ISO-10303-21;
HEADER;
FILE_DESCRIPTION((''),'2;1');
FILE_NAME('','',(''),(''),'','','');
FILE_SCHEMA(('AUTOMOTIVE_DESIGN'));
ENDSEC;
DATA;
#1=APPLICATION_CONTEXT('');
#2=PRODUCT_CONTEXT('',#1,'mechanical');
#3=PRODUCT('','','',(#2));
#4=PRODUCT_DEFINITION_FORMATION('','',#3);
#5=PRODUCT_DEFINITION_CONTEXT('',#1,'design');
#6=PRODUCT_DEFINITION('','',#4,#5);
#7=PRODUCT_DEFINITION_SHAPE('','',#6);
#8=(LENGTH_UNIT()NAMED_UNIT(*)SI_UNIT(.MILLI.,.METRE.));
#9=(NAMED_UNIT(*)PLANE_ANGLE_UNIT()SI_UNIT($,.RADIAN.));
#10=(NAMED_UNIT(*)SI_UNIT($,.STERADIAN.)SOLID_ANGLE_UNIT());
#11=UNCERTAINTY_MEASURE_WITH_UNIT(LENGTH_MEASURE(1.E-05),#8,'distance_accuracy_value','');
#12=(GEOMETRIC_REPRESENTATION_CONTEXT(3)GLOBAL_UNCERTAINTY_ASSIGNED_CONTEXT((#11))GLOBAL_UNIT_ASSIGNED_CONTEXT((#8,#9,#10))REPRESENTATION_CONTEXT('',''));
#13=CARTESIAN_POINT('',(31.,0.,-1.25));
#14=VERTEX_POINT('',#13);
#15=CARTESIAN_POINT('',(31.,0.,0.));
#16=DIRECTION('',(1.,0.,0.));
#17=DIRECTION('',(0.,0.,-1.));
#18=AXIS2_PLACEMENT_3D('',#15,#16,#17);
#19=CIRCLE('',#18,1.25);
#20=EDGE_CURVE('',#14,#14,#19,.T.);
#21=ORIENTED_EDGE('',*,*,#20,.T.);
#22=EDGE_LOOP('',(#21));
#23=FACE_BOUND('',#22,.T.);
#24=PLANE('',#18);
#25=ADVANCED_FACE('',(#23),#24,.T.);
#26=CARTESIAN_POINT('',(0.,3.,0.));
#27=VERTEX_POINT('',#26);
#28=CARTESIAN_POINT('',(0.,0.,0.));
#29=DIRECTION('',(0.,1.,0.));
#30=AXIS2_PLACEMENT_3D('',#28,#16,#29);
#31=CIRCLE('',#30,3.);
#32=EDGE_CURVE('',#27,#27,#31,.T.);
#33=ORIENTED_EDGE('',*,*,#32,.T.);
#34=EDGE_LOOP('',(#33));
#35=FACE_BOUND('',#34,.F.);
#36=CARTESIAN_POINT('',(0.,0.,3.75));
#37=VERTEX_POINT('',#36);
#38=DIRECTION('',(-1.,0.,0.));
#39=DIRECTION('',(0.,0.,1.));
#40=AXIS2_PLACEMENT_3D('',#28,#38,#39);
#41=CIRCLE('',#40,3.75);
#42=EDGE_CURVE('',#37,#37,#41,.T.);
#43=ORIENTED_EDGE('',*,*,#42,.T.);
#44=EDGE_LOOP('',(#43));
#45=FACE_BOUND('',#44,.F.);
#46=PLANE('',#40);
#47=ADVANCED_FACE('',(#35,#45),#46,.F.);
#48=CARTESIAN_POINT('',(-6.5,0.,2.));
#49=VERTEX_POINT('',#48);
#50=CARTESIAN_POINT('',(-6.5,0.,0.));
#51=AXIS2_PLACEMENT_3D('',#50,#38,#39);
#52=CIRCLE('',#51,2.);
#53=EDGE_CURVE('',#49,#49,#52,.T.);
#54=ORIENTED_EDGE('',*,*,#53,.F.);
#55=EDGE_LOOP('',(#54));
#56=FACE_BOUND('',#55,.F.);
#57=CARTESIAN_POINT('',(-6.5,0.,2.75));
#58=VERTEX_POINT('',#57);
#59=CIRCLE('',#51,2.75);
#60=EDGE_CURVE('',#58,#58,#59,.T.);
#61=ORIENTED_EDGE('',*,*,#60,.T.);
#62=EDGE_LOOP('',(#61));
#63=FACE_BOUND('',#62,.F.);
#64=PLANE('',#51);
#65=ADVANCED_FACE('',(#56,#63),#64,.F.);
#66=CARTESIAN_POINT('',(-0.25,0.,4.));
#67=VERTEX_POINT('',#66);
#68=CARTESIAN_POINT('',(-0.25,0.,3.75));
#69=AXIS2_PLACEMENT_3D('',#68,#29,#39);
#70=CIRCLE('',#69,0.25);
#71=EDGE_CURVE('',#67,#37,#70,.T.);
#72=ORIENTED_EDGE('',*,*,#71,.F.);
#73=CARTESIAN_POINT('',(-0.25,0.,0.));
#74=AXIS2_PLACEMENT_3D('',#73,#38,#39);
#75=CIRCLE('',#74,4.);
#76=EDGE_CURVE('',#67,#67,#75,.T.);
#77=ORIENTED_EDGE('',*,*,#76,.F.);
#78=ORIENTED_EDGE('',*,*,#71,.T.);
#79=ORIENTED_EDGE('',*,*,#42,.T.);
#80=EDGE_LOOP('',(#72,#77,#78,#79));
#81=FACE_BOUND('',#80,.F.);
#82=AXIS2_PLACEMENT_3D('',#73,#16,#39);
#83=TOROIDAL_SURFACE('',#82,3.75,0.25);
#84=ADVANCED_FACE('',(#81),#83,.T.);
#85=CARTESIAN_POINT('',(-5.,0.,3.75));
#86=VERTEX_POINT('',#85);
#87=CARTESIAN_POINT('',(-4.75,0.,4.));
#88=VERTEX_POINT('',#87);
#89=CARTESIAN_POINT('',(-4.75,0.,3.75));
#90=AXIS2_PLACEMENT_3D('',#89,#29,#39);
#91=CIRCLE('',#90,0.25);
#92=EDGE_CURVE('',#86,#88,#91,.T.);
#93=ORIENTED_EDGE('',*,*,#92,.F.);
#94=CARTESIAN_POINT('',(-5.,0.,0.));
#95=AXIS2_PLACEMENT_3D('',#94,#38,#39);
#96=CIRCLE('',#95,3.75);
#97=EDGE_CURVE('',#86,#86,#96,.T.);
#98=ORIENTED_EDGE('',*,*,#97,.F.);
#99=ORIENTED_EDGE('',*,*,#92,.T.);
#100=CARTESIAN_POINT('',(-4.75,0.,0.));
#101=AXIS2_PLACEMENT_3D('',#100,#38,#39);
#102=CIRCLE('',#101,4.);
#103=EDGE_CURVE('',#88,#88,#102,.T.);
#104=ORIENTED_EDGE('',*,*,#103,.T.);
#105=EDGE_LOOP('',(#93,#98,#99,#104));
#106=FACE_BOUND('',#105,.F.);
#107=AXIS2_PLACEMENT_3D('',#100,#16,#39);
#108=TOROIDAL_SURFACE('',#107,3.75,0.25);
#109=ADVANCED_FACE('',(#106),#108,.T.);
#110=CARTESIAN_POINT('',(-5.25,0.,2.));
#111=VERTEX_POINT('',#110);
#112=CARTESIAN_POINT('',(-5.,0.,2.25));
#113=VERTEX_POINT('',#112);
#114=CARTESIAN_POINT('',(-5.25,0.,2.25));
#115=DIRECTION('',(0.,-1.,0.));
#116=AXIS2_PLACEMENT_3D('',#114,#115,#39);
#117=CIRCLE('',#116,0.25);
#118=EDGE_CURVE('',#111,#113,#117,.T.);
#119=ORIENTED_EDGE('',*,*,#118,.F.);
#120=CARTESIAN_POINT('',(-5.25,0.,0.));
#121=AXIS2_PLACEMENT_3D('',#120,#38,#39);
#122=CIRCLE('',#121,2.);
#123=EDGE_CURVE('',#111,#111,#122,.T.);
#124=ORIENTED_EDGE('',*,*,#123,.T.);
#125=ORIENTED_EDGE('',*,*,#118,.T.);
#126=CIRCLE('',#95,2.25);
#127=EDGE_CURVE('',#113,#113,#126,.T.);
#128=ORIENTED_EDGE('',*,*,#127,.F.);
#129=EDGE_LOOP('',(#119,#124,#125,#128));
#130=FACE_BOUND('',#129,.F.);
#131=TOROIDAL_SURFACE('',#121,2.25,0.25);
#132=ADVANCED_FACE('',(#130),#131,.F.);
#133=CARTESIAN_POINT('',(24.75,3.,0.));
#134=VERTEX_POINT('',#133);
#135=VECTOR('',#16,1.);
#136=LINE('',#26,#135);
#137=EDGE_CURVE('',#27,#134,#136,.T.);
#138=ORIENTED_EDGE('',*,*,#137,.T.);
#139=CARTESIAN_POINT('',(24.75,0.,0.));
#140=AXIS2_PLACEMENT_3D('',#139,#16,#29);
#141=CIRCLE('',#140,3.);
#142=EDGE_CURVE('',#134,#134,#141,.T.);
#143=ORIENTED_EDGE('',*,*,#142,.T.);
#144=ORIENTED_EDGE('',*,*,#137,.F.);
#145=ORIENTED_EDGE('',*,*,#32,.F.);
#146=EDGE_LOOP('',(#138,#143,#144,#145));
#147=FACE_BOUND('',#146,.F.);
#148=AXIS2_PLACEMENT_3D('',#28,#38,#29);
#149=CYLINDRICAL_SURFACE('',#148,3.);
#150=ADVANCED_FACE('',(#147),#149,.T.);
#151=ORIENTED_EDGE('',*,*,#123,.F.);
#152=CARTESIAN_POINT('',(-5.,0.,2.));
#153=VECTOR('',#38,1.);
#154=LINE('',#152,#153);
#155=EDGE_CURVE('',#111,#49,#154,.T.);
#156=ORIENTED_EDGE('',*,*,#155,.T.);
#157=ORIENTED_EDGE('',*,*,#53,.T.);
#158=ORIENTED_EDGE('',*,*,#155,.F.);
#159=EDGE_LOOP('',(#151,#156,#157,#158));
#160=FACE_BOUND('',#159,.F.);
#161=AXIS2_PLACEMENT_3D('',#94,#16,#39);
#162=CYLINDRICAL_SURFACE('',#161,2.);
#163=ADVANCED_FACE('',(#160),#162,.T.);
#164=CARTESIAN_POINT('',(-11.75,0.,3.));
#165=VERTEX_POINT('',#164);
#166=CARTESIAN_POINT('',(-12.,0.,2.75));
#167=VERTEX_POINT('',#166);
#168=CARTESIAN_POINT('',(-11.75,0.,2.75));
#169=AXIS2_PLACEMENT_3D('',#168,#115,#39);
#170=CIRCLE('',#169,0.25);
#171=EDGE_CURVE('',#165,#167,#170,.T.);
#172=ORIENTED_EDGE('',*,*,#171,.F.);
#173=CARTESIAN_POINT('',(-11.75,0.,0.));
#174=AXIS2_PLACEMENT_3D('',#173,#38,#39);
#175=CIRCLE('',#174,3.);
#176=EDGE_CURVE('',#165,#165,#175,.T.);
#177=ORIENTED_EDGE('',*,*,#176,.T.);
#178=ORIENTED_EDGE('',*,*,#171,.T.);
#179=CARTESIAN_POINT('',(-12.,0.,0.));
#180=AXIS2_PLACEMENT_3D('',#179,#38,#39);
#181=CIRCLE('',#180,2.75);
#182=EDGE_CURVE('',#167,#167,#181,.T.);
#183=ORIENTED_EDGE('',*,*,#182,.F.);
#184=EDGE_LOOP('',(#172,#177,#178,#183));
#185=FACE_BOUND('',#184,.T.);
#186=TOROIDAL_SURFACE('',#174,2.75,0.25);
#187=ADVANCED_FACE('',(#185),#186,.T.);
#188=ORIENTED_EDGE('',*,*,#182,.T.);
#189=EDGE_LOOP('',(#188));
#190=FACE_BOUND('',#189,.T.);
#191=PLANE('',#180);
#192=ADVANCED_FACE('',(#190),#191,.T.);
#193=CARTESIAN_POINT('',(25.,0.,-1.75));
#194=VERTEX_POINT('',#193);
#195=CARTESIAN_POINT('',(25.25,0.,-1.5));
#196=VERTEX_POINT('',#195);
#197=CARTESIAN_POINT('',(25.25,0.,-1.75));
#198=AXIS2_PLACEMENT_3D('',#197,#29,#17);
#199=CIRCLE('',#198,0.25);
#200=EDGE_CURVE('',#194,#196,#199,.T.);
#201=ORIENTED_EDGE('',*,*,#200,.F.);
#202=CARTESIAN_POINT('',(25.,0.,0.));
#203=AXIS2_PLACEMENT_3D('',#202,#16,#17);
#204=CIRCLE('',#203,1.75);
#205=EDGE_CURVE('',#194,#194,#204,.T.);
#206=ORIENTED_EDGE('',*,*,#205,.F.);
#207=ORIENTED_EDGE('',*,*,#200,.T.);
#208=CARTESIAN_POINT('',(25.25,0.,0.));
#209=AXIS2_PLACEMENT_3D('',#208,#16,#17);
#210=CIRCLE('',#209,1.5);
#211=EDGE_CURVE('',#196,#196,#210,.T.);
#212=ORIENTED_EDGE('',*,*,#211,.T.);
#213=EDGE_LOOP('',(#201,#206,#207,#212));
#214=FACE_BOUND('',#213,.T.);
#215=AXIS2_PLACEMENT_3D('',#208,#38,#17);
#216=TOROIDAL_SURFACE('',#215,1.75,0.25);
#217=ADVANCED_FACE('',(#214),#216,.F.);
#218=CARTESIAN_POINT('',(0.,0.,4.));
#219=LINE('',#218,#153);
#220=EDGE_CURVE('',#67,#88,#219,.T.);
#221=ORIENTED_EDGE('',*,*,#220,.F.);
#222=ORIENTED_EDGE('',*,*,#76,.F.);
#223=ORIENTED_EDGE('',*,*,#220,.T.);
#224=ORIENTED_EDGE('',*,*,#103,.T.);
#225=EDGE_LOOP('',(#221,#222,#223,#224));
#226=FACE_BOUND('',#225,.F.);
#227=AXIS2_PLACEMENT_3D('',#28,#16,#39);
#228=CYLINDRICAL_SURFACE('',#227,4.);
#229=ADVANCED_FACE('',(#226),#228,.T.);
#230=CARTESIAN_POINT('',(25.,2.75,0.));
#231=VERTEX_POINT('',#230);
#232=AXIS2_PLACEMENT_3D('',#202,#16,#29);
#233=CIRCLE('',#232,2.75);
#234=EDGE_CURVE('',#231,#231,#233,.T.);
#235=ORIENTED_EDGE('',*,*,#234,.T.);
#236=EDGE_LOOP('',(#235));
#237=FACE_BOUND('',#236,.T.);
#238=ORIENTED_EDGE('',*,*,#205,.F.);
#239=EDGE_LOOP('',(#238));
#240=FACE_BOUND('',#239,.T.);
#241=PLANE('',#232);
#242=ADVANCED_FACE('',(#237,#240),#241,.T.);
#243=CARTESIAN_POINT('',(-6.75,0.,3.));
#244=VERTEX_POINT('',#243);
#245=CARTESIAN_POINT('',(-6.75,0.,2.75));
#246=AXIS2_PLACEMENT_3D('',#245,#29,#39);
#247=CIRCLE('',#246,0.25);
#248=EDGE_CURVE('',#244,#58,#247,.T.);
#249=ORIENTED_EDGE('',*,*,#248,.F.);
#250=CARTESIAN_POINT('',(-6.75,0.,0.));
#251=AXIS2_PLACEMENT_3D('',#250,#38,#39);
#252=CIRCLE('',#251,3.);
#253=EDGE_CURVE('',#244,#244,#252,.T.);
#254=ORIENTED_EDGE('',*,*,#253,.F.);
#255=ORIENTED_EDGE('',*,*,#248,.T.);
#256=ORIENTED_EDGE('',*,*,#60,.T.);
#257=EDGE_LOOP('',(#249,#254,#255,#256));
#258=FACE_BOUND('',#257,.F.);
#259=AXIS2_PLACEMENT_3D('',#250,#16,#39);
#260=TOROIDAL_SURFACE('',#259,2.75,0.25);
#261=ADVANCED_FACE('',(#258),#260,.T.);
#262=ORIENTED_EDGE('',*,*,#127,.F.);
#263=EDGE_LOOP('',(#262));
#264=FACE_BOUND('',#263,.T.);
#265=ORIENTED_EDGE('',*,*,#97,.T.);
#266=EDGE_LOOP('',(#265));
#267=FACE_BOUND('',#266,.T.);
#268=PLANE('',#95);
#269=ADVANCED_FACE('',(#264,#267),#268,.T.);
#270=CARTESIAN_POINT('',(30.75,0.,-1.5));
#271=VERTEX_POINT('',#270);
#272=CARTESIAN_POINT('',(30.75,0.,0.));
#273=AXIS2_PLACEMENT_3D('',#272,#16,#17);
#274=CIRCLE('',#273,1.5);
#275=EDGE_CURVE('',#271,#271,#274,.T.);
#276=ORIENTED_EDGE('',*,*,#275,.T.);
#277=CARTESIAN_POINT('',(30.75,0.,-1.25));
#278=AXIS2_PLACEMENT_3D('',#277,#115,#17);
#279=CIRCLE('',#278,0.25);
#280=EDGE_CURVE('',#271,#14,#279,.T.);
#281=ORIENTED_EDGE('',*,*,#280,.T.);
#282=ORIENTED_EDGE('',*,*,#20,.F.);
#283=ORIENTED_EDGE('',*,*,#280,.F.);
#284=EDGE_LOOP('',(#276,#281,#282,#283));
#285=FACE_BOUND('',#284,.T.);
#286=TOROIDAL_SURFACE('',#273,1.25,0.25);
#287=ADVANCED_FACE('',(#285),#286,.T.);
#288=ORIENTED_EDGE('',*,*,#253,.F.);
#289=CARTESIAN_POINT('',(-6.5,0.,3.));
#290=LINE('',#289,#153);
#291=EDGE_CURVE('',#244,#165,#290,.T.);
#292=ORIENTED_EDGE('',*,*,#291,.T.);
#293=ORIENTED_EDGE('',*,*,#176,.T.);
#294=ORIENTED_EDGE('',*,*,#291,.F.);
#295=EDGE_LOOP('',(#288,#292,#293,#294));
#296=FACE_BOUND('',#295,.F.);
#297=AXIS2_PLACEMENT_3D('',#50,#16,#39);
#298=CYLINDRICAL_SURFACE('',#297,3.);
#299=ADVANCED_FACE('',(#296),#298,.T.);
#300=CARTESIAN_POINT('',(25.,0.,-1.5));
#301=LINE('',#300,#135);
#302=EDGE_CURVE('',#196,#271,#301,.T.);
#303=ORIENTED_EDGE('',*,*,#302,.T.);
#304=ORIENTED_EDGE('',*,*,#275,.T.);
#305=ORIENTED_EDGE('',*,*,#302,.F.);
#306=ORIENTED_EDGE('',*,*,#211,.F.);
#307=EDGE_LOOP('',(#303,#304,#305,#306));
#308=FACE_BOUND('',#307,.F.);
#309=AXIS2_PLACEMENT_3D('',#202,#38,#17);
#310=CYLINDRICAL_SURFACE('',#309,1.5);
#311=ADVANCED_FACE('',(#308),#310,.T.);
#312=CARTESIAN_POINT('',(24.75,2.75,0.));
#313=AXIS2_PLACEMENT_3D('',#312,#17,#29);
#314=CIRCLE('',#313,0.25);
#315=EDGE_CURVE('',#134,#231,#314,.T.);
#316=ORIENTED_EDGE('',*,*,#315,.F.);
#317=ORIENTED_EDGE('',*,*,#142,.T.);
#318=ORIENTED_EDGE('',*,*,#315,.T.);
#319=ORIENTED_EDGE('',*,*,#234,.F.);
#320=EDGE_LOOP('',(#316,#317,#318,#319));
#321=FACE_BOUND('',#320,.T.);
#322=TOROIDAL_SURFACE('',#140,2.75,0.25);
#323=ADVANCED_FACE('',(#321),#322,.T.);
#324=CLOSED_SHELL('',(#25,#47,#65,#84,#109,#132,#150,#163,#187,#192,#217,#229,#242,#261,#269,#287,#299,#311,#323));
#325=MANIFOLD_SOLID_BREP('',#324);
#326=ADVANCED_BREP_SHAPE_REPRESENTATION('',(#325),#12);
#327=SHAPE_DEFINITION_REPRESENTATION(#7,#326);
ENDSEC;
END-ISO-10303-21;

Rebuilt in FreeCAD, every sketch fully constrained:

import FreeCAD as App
import Part
import Sketcher
from FreeCAD import Vector


def edges_at(feature, points):
    """Names of the edges that pass closest to the given points."""
    edges = feature.Shape.Edges
    near = lambda p: min(range(len(edges)), key=lambda i: edges[i].distToShape(Part.Vertex(*p))[0])
    return sorted({f"Edge{near(p) + 1}" for p in points})

doc = App.newDocument("Part")
body = doc.addObject("PartDesign::Body", "Body")

# Sketch on YZ plane
sketch1 = body.newObject("Sketcher::SketchObject", "Sketch")
sketch1.AttachmentSupport = (doc.getObject("YZ_Plane"), [""])
sketch1.MapMode = "FlatFace"
sketch1.addGeometry(Part.Circle(Vector(0, 0, 0), Vector(0, 0, 1), 3), False)
sketch1.addConstraint(Sketcher.Constraint("Coincident", 0, 3, -1, 1))
sketch1.addConstraint(Sketcher.Constraint("Diameter", 0, 6.0))
pad1 = body.newObject("PartDesign::Pad", "Pad")
pad1.Profile = sketch1
pad1.Length = 25

# Sketch on YZ plane
sketch2 = body.newObject("Sketcher::SketchObject", "Sketch001")
sketch2.AttachmentSupport = (doc.getObject("YZ_Plane"), [""])
sketch2.MapMode = "FlatFace"
sketch2.AttachmentOffset = App.Placement(Vector(0, 0, 25), App.Rotation())
sketch2.addGeometry(Part.Circle(Vector(0, 0, 0), Vector(0, 0, 1), 1.5), False)
sketch2.addConstraint(Sketcher.Constraint("Coincident", 0, 3, -1, 1))
sketch2.addConstraint(Sketcher.Constraint("Diameter", 0, 3.0))
pad2 = body.newObject("PartDesign::Pad", "Pad001")
pad2.Profile = sketch2
pad2.Length = 6

# Sketch on YZ plane
sketch3 = body.newObject("Sketcher::SketchObject", "Sketch002")
sketch3.AttachmentSupport = (doc.getObject("YZ_Plane"), [""])
sketch3.MapMode = "FlatFace"
sketch3.addGeometry(Part.Circle(Vector(0, 0, 0), Vector(0, 0, 1), 4), False)
sketch3.addConstraint(Sketcher.Constraint("Coincident", 0, 3, -1, 1))
sketch3.addConstraint(Sketcher.Constraint("Diameter", 0, 8.0))
pad3 = body.newObject("PartDesign::Pad", "Pad002")
pad3.Profile = sketch3
pad3.Length = 5
pad3.Reversed = True

# Sketch on YZ plane
sketch4 = body.newObject("Sketcher::SketchObject", "Sketch003")
sketch4.AttachmentSupport = (doc.getObject("YZ_Plane"), [""])
sketch4.MapMode = "FlatFace"
sketch4.AttachmentOffset = App.Placement(Vector(0, 0, -5), App.Rotation())
sketch4.addGeometry(Part.Circle(Vector(0, 0, 0), Vector(0, 0, 1), 2), False)
sketch4.addConstraint(Sketcher.Constraint("Coincident", 0, 3, -1, 1))
sketch4.addConstraint(Sketcher.Constraint("Diameter", 0, 4.0))
pad4 = body.newObject("PartDesign::Pad", "Pad003")
pad4.Profile = sketch4
pad4.Length = 1.5
pad4.Reversed = True

# Sketch on YZ plane
sketch5 = body.newObject("Sketcher::SketchObject", "Sketch004")
sketch5.AttachmentSupport = (doc.getObject("YZ_Plane"), [""])
sketch5.MapMode = "FlatFace"
sketch5.AttachmentOffset = App.Placement(Vector(0, 0, -6.5), App.Rotation())
sketch5.addGeometry(Part.Circle(Vector(0, 0, 0), Vector(0, 0, 1), 3), False)
sketch5.addConstraint(Sketcher.Constraint("Coincident", 0, 3, -1, 1))
sketch5.addConstraint(Sketcher.Constraint("Diameter", 0, 6.0))
pad5 = body.newObject("PartDesign::Pad", "Pad004")
pad5.Profile = sketch5
pad5.Length = 5.5
pad5.Reversed = True
doc.recompute()

fillet = body.newObject("PartDesign::Fillet", "Fillet")
fillet.Base = (pad5, edges_at(pad5, [
    (-12, 0, -3),
    (-6.5, 0, -3),
    (-5, 0, -4),
    (0, 0, -4),
    (25, -3, 0),
    (31, 0, 1.5),
    (25, 0, 1.5),
    (-5, 0, -2),
]))
fillet.Radius = 0.25

doc.recompute()
